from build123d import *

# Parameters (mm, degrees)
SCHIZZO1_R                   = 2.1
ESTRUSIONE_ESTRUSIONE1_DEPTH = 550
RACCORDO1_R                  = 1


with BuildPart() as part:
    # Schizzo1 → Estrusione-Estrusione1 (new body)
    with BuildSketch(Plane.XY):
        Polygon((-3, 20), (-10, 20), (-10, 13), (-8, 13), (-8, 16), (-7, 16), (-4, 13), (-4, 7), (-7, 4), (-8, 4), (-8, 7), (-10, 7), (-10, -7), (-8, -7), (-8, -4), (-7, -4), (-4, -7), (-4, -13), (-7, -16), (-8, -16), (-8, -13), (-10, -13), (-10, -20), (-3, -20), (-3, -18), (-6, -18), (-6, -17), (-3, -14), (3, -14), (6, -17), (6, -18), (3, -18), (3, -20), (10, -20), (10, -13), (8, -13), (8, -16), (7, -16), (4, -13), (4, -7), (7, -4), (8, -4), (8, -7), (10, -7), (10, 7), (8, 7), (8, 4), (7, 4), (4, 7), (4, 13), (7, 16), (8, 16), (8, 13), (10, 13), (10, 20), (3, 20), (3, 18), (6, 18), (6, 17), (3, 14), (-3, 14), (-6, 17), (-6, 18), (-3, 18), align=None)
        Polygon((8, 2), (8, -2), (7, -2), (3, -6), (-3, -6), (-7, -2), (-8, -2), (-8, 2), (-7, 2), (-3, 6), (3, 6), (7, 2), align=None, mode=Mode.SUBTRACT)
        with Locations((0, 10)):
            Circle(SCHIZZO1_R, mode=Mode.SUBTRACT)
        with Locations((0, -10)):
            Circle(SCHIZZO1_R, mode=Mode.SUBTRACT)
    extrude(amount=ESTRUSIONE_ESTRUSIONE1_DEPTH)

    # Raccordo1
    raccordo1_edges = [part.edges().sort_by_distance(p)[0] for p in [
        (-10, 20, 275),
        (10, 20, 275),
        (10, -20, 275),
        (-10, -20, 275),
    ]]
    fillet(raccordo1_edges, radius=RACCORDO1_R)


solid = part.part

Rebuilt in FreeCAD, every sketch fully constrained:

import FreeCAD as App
import Part
import Sketcher
from FreeCAD import Vector


def edges_at(feature, points):
    """Names of the edges that pass closest to the given points."""
    edges = feature.Shape.Edges
    near = lambda p: min(range(len(edges)), key=lambda i: edges[i].distToShape(Part.Vertex(*p))[0])
    return sorted({f"Edge{near(p) + 1}" for p in points})

doc = App.newDocument("Part")
body = doc.addObject("PartDesign::Body", "Body")

# Sketch on XY plane
sketch1 = body.newObject("Sketcher::SketchObject", "Sketch")
sketch1.AttachmentSupport = (doc.getObject("XY_Plane"), [""])
sketch1.MapMode = "FlatFace"
sketch1.addGeometry([
    Part.LineSegment(Vector(-3, 20, 0), Vector(-10, 20, 0)),  # 0
    Part.LineSegment(Vector(-10, 20, 0), Vector(-10, 13, 0)),  # 1
    Part.LineSegment(Vector(-10, 13, 0), Vector(-8, 13, 0)),  # 2
    Part.LineSegment(Vector(-8, 13, 0), Vector(-8, 16, 0)),  # 3
    Part.LineSegment(Vector(-8, 16, 0), Vector(-7, 16, 0)),  # 4
    Part.LineSegment(Vector(-7, 16, 0), Vector(-4, 13, 0)),  # 5
    Part.LineSegment(Vector(-4, 13, 0), Vector(-4, 7, 0)),  # 6
    Part.LineSegment(Vector(-4, 7, 0), Vector(-7, 4, 0)),  # 7
    Part.LineSegment(Vector(-7, 4, 0), Vector(-8, 4, 0)),  # 8
    Part.LineSegment(Vector(-8, 4, 0), Vector(-8, 7, 0)),  # 9
    Part.LineSegment(Vector(-8, 7, 0), Vector(-10, 7, 0)),  # 10
    Part.LineSegment(Vector(-10, 7, 0), Vector(-10, -7, 0)),  # 11
    Part.LineSegment(Vector(-10, -7, 0), Vector(-8, -7, 0)),  # 12
    Part.LineSegment(Vector(-8, -7, 0), Vector(-8, -4, 0)),  # 13
    Part.LineSegment(Vector(-8, -4, 0), Vector(-7, -4, 0)),  # 14
    Part.LineSegment(Vector(-7, -4, 0), Vector(-4, -7, 0)),  # 15
    Part.LineSegment(Vector(-4, -7, 0), Vector(-4, -13, 0)),  # 16
    Part.LineSegment(Vector(-4, -13, 0), Vector(-7, -16, 0)),  # 17
    Part.LineSegment(Vector(-7, -16, 0), Vector(-8, -16, 0)),  # 18
    Part.LineSegment(Vector(-8, -16, 0), Vector(-8, -13, 0)),  # 19
    Part.LineSegment(Vector(-8, -13, 0), Vector(-10, -13, 0)),  # 20
    Part.LineSegment(Vector(-10, -13, 0), Vector(-10, -20, 0)),  # 21
    Part.LineSegment(Vector(-10, -20, 0), Vector(-3, -20, 0)),  # 22
    Part.LineSegment(Vector(-3, -20, 0), Vector(-3, -18, 0)),  # 23
    Part.LineSegment(Vector(-3, -18, 0), Vector(-6, -18, 0)),  # 24
    Part.LineSegment(Vector(-6, -18, 0), Vector(-6, -17, 0)),  # 25
    Part.LineSegment(Vector(-6, -17, 0), Vector(-3, -14, 0)),  # 26
    Part.LineSegment(Vector(-3, -14, 0), Vector(3, -14, 0)),  # 27
    Part.LineSegment(Vector(3, -14, 0), Vector(6, -17, 0)),  # 28
    Part.LineSegment(Vector(6, -17, 0), Vector(6, -18, 0)),  # 29
    Part.LineSegment(Vector(6, -18, 0), Vector(3, -18, 0)),  # 30
    Part.LineSegment(Vector(3, -18, 0), Vector(3, -20, 0)),  # 31
    Part.LineSegment(Vector(3, -20, 0), Vector(10, -20, 0)),  # 32
    Part.LineSegment(Vector(10, -20, 0), Vector(10, -13, 0)),  # 33
    Part.LineSegment(Vector(10, -13, 0), Vector(8, -13, 0)),  # 34
    Part.LineSegment(Vector(8, -13, 0), Vector(8, -16, 0)),  # 35
    Part.LineSegment(Vector(8, -16, 0), Vector(7, -16, 0)),  # 36
    Part.LineSegment(Vector(7, -16, 0), Vector(4, -13, 0)),  # 37
    Part.LineSegment(Vector(4, -13, 0), Vector(4, -7, 0)),  # 38
    Part.LineSegment(Vector(4, -7, 0), Vector(7, -4, 0)),  # 39
    Part.LineSegment(Vector(7, -4, 0), Vector(8, -4, 0)),  # 40
    Part.LineSegment(Vector(8, -4, 0), Vector(8, -7, 0)),  # 41
    Part.LineSegment(Vector(8, -7, 0), Vector(10, -7, 0)),  # 42
    Part.LineSegment(Vector(10, -7, 0), Vector(10, 7, 0)),  # 43
    Part.LineSegment(Vector(10, 7, 0), Vector(8, 7, 0)),  # 44
    Part.LineSegment(Vector(8, 7, 0), Vector(8, 4, 0)),  # 45
    Part.LineSegment(Vector(8, 4, 0), Vector(7, 4, 0)),  # 46
    Part.LineSegment(Vector(7, 4, 0), Vector(4, 7, 0)),  # 47
    Part.LineSegment(Vector(4, 7, 0), Vector(4, 13, 0)),  # 48
    Part.LineSegment(Vector(4, 13, 0), Vector(7, 16, 0)),  # 49
    Part.LineSegment(Vector(7, 16, 0), Vector(8, 16, 0)),  # 50
    Part.LineSegment(Vector(8, 16, 0), Vector(8, 13, 0)),  # 51
    Part.LineSegment(Vector(8, 13, 0), Vector(10, 13, 0)),  # 52
    Part.LineSegment(Vector(10, 13, 0), Vector(10, 20, 0)),  # 53
    Part.LineSegment(Vector(10, 20, 0), Vector(3, 20, 0)),  # 54
    Part.LineSegment(Vector(3, 20, 0), Vector(3, 18, 0)),  # 55
    Part.LineSegment(Vector(3, 18, 0), Vector(6, 18, 0)),  # 56
    Part.LineSegment(Vector(6, 18, 0), Vector(6, 17, 0)),  # 57
    Part.LineSegment(Vector(6, 17, 0), Vector(3, 14, 0)),  # 58
    Part.LineSegment(Vector(3, 14, 0), Vector(-3, 14, 0)),  # 59
    Part.LineSegment(Vector(-3, 14, 0), Vector(-6, 17, 0)),  # 60
    Part.LineSegment(Vector(-6, 17, 0), Vector(-6, 18, 0)),  # 61
    Part.LineSegment(Vector(-6, 18, 0), Vector(-3, 18, 0)),  # 62
    Part.LineSegment(Vector(-3, 18, 0), Vector(-3, 20, 0)),  # 63
    Part.Circle(Vector(0, -10, 0), Vector(0, 0, 1), 2.1),  # 64
    Part.LineSegment(Vector(7, 2, 0), Vector(8, 2, 0)),  # 65
    Part.LineSegment(Vector(8, 2, 0), Vector(8, -2, 0)),  # 66
    Part.LineSegment(Vector(8, -2, 0), Vector(7, -2, 0)),  # 67
    Part.LineSegment(Vector(7, -2, 0), Vector(3, -6, 0)),  # 68
    Part.LineSegment(Vector(3, -6, 0), Vector(-3, -6, 0)),  # 69
    Part.LineSegment(Vector(-3, -6, 0), Vector(-7, -2, 0)),  # 70
    Part.LineSegment(Vector(-7, -2, 0), Vector(-8, -2, 0)),  # 71
    Part.LineSegment(Vector(-8, -2, 0), Vector(-8, 2, 0)),  # 72
    Part.LineSegment(Vector(-8, 2, 0), Vector(-7, 2, 0)),  # 73
    Part.LineSegment(Vector(-7, 2, 0), Vector(-3, 6, 0)),  # 74
    Part.LineSegment(Vector(-3, 6, 0), Vector(3, 6, 0)),  # 75
    Part.LineSegment(Vector(3, 6, 0), Vector(7, 2, 0)),  # 76
    Part.Circle(Vector(0, 10, 0), Vector(0, 0, 1), 2.1),  # 77
], False)
sketch1.addConstraint([
    Sketcher.Constraint("Coincident", 0, 2, 1, 1),
    Sketcher.Constraint("Coincident", 1, 2, 2, 1),
    Sketcher.Constraint("Coincident", 2, 2, 3, 1),
    Sketcher.Constraint("Coincident", 3, 2, 4, 1),
    Sketcher.Constraint("Coincident", 4, 2, 5, 1),
    Sketcher.Constraint("Coincident", 5, 2, 6, 1),
    Sketcher.Constraint("Coincident", 6, 2, 7, 1),
    Sketcher.Constraint("Coincident", 7, 2, 8, 1),
    Sketcher.Constraint("Coincident", 8, 2, 9, 1),
    Sketcher.Constraint("Coincident", 9, 2, 10, 1),
    Sketcher.Constraint("Coincident", 10, 2, 11, 1),
    Sketcher.Constraint("Coincident", 11, 2, 12, 1),
    Sketcher.Constraint("Coincident", 12, 2, 13, 1),
    Sketcher.Constraint("Coincident", 13, 2, 14, 1),
    Sketcher.Constraint("Coincident", 14, 2, 15, 1),
    Sketcher.Constraint("Coincident", 15, 2, 16, 1),
    Sketcher.Constraint("Coincident", 16, 2, 17, 1),
    Sketcher.Constraint("Coincident", 17, 2, 18, 1),
    Sketcher.Constraint("Coincident", 18, 2, 19, 1),
    Sketcher.Constraint("Coincident", 19, 2, 20, 1),
    Sketcher.Constraint("Coincident", 20, 2, 21, 1),
    Sketcher.Constraint("Coincident", 21, 2, 22, 1),
    Sketcher.Constraint("Coincident", 22, 2, 23, 1),
    Sketcher.Constraint("Coincident", 23, 2, 24, 1),
    Sketcher.Constraint("Coincident", 24, 2, 25, 1),
    Sketcher.Constraint("Coincident", 25, 2, 26, 1),
    Sketcher.Constraint("Coincident", 26, 2, 27, 1),
    Sketcher.Constraint("Coincident", 27, 2, 28, 1),
    Sketcher.Constraint("Coincident", 28, 2, 29, 1),
    Sketcher.Constraint("Coincident", 29, 2, 30, 1),
    Sketcher.Constraint("Coincident", 30, 2, 31, 1),
    Sketcher.Constraint("Coincident", 31, 2, 32, 1),
    Sketcher.Constraint("Coincident", 32, 2, 33, 1),
    Sketcher.Constraint("Coincident", 33, 2, 34, 1),
    Sketcher.Constraint("Coincident", 34, 2, 35, 1),
    Sketcher.Constraint("Coincident", 35, 2, 36, 1),
    Sketcher.Constraint("Coincident", 36, 2, 37, 1),
    Sketcher.Constraint("Coincident", 37, 2, 38, 1),
    Sketcher.Constraint("Coincident", 38, 2, 39, 1),
    Sketcher.Constraint("Coincident", 39, 2, 40, 1),
    Sketcher.Constraint("Coincident", 40, 2, 41, 1),
    Sketcher.Constraint("Coincident", 41, 2, 42, 1),
    Sketcher.Constraint("Coincident", 42, 2, 43, 1),
    Sketcher.Constraint("Coincident", 43, 2, 44, 1),
    Sketcher.Constraint("Coincident", 44, 2, 45, 1),
    Sketcher.Constraint("Coincident", 45, 2, 46, 1),
    Sketcher.Constraint("Coincident", 46, 2, 47, 1),
    Sketcher.Constraint("Coincident", 47, 2, 48, 1),
    Sketcher.Constraint("Coincident", 48, 2, 49, 1),
    Sketcher.Constraint("Coincident", 49, 2, 50, 1),
    Sketcher.Constraint("Coincident", 50, 2, 51, 1),
    Sketcher.Constraint("Coincident", 51, 2, 52, 1),
    Sketcher.Constraint("Coincident", 52, 2, 53, 1),
    Sketcher.Constraint("Coincident", 53, 2, 54, 1),
    Sketcher.Constraint("Coincident", 54, 2, 55, 1),
    Sketcher.Constraint("Coincident", 55, 2, 56, 1),
    Sketcher.Constraint("Coincident", 56, 2, 57, 1),
    Sketcher.Constraint("Coincident", 57, 2, 58, 1),
    Sketcher.Constraint("Coincident", 58, 2, 59, 1),
    Sketcher.Constraint("Coincident", 59, 2, 60, 1),
    Sketcher.Constraint("Coincident", 60, 2, 61, 1),
    Sketcher.Constraint("Coincident", 61, 2, 62, 1),
    Sketcher.Constraint("Coincident", 62, 2, 63, 1),
    Sketcher.Constraint("Coincident", 63, 2, 0, 1),
    Sketcher.Constraint("Coincident", 65, 2, 66, 1),
    Sketcher.Constraint("Coincident", 66, 2, 67, 1),
    Sketcher.Constraint("Coincident", 67, 2, 68, 1),
    Sketcher.Constraint("Coincident", 68, 2, 69, 1),
    Sketcher.Constraint("Coincident", 69, 2, 70, 1),
    Sketcher.Constraint("Coincident", 70, 2, 71, 1),
    Sketcher.Constraint("Coincident", 71, 2, 72, 1),
    Sketcher.Constraint("Coincident", 72, 2, 73, 1),
    Sketcher.Constraint("Coincident", 73, 2, 74, 1),
    Sketcher.Constraint("Coincident", 74, 2, 75, 1),
    Sketcher.Constraint("Coincident", 75, 2, 76, 1),
    Sketcher.Constraint("Coincident", 76, 2, 65, 1),
    Sketcher.Constraint("Horizontal", 0),
    Sketcher.Constraint("Vertical", 1),
    Sketcher.Constraint("Horizontal", 2),
    Sketcher.Constraint("Vertical", 3),
    Sketcher.Constraint("Horizontal", 4),
    Sketcher.Constraint("Vertical", 6),
    Sketcher.Constraint("Horizontal", 8),
    Sketcher.Constraint("Vertical", 9),
    Sketcher.Constraint("Horizontal", 10),
    Sketcher.Constraint("Vertical", 11),
    Sketcher.Constraint("Horizontal", 12),
    Sketcher.Constraint("Vertical", 13),
    Sketcher.Constraint("Horizontal", 14),
    Sketcher.Constraint("Vertical", 16),
    Sketcher.Constraint("Horizontal", 18),
    Sketcher.Constraint("Vertical", 19),
    Sketcher.Constraint("Horizontal", 20),
    Sketcher.Constraint("Vertical", 21),
    Sketcher.Constraint("Horizontal", 22),
    Sketcher.Constraint("Vertical", 23),
    Sketcher.Constraint("Horizontal", 24),
    Sketcher.Constraint("Vertical", 25),
    Sketcher.Constraint("Horizontal", 27),
    Sketcher.Constraint("Vertical", 29),
    Sketcher.Constraint("Horizontal", 30),
    Sketcher.Constraint("Vertical", 31),
    Sketcher.Constraint("Horizontal", 32),
    Sketcher.Constraint("Vertical", 33),
    Sketcher.Constraint("Horizontal", 34),
    Sketcher.Constraint("Vertical", 35),
    Sketcher.Constraint("Horizontal", 36),
    Sketcher.Constraint("Vertical", 38),
    Sketcher.Constraint("Horizontal", 40),
    Sketcher.Constraint("Vertical", 41),
    Sketcher.Constraint("Horizontal", 42),
    Sketcher.Constraint("Vertical", 43),
    Sketcher.Constraint("Horizontal", 44),
    Sketcher.Constraint("Vertical", 45),
    Sketcher.Constraint("Horizontal", 46),
    Sketcher.Constraint("Vertical", 48),
    Sketcher.Constraint("Horizontal", 50),
    Sketcher.Constraint("Vertical", 51),
    Sketcher.Constraint("Horizontal", 52),
    Sketcher.Constraint("Vertical", 53),
    Sketcher.Constraint("Horizontal", 54),
    Sketcher.Constraint("Vertical", 55),
    Sketcher.Constraint("Horizontal", 56),
    Sketcher.Constraint("Vertical", 57),
    Sketcher.Constraint("Horizontal", 59),
    Sketcher.Constraint("Vertical", 61),
    Sketcher.Constraint("Horizontal", 62),
    Sketcher.Constraint("Vertical", 63),
    Sketcher.Constraint("Horizontal", 65),
    Sketcher.Constraint("Vertical", 66),
    Sketcher.Constraint("Horizontal", 67),
    Sketcher.Constraint("Horizontal", 69),
    Sketcher.Constraint("Horizontal", 71),
    Sketcher.Constraint("Vertical", 72),
    Sketcher.Constraint("Horizontal", 73),
    Sketcher.Constraint("Horizontal", 75),
    Sketcher.Constraint("Equal", 64, 77),
    Sketcher.Constraint("Symmetric", 64, 3, 77, 3, -1, 1),
    Sketcher.Constraint("Symmetric", 0, 2, 32, 2, -1, 1),
    Sketcher.Constraint("Symmetric", 2, 2, 34, 2, -1, 1),
    Sketcher.Constraint("Symmetric", 4, 2, 36, 2, -1, 1),
    Sketcher.Constraint("Symmetric", 5, 2, 37, 2, -1, 1),
    Sketcher.Constraint("Symmetric", 7, 2, 39, 2, -1, 1),
    Sketcher.Constraint("Symmetric", 9, 2, 41, 2, -1, 1),
    Sketcher.Constraint("Symmetric", 11, 2, 43, 2, -1, 1),
    Sketcher.Constraint("Symmetric", 13, 2, 45, 2, -1, 1),
    Sketcher.Constraint("Symmetric", 15, 2, 47, 2, -1, 1),
    Sketcher.Constraint("Symmetric", 17, 2, 49, 2, -1, 1),
    Sketcher.Constraint("Symmetric", 19, 2, 51, 2, -1, 1),
    Sketcher.Constraint("Symmetric", 21, 2, 53, 2, -1, 1),
    Sketcher.Constraint("Symmetric", 23, 2, 55, 2, -1, 1),
    Sketcher.Constraint("Symmetric", 25, 2, 57, 2, -1, 1),
    Sketcher.Constraint("Symmetric", 26, 2, 58, 2, -1, 1),
    Sketcher.Constraint("Symmetric", 28, 2, 60, 2, -1, 1),
    Sketcher.Constraint("Symmetric", 30, 2, 62, 2, -1, 1),
    Sketcher.Constraint("Symmetric", 65, 2, 71, 2, -1, 1),
    Sketcher.Constraint("Symmetric", 67, 2, 73, 2, -1, 1),
    Sketcher.Constraint("Symmetric", 68, 2, 74, 2, -1, 1),
    Sketcher.Constraint("Symmetric", 25, 2, 28, 2, -2),
    Sketcher.Constraint("Symmetric", 23, 2, 30, 2, -2),
    Sketcher.Constraint("Symmetric", 21, 2, 32, 2, -2),
    Sketcher.Constraint("Symmetric", 19, 2, 34, 2, -2),
    Sketcher.Constraint("Symmetric", 17, 2, 36, 2, -2),
    Sketcher.Constraint("Symmetric", 16, 2, 37, 2, -2),
    Sketcher.Constraint("Symmetric", 14, 2, 39, 2, -2),
    Sketcher.Constraint("Symmetric", 12, 2, 41, 2, -2),
    Sketcher.Constraint("Symmetric", 67, 2, 70, 2, -2),
    Sketcher.Constraint("PointOnObject", 64, 3, -2),
    Sketcher.Constraint("Perpendicular", 5, 7),
    Sketcher.Constraint("Perpendicular", 7, 15),
    Sketcher.Constraint("Perpendicular", 15, 17),
    Sketcher.Constraint("Parallel", 17, 26),
    Sketcher.Constraint("Perpendicular", 26, 28),
    Sketcher.Constraint("Perpendicular", 37, 39),
    Sketcher.Constraint("Perpendicular", 39, 47),
    Sketcher.Constraint("Perpendicular", 47, 49),
    Sketcher.Constraint("Perpendicular", 58, 60),
    Sketcher.Constraint("Perpendicular", 60, 68),
    Sketcher.Constraint("Perpendicular", 68, 70),
    Sketcher.Constraint("Perpendicular", 74, 76),
    Sketcher.Constraint("Horizontal", 2, 2, 5, 2),
    Sketcher.Constraint("Horizontal", 6, 2, 9, 2),
    Sketcher.Constraint("Vertical", 4, 2, 7, 2),
    Sketcher.Constraint("Vertical", 3, 2, 8, 2),
    Sketcher.Constraint("Vertical", 1, 2, 10, 2),
    Sketcher.Constraint("Vertical", 23, 2, 26, 2),
    Sketcher.Constraint("Vertical", 51, 2, 65, 2),
    Sketcher.Constraint("Vertical", 49, 2, 67, 2),
    Sketcher.Constraint("Vertical", 58, 2, 68, 2),
    Sketcher.Constraint("Vertical", 68, 2, 75, 2),
    Sketcher.Constraint("Equal", 54, 1),
    Sketcher.Constraint("Equal", 62, 3),
    Sketcher.Constraint("Equal", 75, 6),
    Sketcher.Constraint("Equal", 52, 23),
    Sketcher.Constraint("Equal", 73, 25),
    Sketcher.Constraint("Diameter", 64, 4.2),
    Sketcher.Constraint("DistanceX", 0, 2, 0, 1, 7.0),
    Sketcher.Constraint("DistanceX", 2, 1, 2, 2, 2.0),
    Sketcher.Constraint("DistanceX", 4, 1, 4, 2, 1.0),
    Sketcher.Constraint("DistanceX", 24, 2, 24, 1, 3.0),
    Sketcher.Constraint("DistanceX", 27, 1, 27, 2, 6.0),
    Sketcher.Constraint("DistanceY", 11, 2, 11, 1, 14.0),
    Sketcher.Constraint("DistanceY", 66, 2, 66, 1, 4.0),
    Sketcher.Constraint("DistanceY", 64, 3, -1, 1, 10.0),
])
pad1 = body.newObject("PartDesign::Pad", "Pad")
pad1.Profile = sketch1
pad1.Length = 550
doc.recompute()

fillet = body.newObject("PartDesign::Fillet", "Fillet")
fillet.Base = (pad1, edges_at(pad1, [
    (-10, 20, 275),
    (10, 20, 275),
    (10, -20, 275),
    (-10, -20, 275),
]))
fillet.Radius = 1

doc.recompute()
